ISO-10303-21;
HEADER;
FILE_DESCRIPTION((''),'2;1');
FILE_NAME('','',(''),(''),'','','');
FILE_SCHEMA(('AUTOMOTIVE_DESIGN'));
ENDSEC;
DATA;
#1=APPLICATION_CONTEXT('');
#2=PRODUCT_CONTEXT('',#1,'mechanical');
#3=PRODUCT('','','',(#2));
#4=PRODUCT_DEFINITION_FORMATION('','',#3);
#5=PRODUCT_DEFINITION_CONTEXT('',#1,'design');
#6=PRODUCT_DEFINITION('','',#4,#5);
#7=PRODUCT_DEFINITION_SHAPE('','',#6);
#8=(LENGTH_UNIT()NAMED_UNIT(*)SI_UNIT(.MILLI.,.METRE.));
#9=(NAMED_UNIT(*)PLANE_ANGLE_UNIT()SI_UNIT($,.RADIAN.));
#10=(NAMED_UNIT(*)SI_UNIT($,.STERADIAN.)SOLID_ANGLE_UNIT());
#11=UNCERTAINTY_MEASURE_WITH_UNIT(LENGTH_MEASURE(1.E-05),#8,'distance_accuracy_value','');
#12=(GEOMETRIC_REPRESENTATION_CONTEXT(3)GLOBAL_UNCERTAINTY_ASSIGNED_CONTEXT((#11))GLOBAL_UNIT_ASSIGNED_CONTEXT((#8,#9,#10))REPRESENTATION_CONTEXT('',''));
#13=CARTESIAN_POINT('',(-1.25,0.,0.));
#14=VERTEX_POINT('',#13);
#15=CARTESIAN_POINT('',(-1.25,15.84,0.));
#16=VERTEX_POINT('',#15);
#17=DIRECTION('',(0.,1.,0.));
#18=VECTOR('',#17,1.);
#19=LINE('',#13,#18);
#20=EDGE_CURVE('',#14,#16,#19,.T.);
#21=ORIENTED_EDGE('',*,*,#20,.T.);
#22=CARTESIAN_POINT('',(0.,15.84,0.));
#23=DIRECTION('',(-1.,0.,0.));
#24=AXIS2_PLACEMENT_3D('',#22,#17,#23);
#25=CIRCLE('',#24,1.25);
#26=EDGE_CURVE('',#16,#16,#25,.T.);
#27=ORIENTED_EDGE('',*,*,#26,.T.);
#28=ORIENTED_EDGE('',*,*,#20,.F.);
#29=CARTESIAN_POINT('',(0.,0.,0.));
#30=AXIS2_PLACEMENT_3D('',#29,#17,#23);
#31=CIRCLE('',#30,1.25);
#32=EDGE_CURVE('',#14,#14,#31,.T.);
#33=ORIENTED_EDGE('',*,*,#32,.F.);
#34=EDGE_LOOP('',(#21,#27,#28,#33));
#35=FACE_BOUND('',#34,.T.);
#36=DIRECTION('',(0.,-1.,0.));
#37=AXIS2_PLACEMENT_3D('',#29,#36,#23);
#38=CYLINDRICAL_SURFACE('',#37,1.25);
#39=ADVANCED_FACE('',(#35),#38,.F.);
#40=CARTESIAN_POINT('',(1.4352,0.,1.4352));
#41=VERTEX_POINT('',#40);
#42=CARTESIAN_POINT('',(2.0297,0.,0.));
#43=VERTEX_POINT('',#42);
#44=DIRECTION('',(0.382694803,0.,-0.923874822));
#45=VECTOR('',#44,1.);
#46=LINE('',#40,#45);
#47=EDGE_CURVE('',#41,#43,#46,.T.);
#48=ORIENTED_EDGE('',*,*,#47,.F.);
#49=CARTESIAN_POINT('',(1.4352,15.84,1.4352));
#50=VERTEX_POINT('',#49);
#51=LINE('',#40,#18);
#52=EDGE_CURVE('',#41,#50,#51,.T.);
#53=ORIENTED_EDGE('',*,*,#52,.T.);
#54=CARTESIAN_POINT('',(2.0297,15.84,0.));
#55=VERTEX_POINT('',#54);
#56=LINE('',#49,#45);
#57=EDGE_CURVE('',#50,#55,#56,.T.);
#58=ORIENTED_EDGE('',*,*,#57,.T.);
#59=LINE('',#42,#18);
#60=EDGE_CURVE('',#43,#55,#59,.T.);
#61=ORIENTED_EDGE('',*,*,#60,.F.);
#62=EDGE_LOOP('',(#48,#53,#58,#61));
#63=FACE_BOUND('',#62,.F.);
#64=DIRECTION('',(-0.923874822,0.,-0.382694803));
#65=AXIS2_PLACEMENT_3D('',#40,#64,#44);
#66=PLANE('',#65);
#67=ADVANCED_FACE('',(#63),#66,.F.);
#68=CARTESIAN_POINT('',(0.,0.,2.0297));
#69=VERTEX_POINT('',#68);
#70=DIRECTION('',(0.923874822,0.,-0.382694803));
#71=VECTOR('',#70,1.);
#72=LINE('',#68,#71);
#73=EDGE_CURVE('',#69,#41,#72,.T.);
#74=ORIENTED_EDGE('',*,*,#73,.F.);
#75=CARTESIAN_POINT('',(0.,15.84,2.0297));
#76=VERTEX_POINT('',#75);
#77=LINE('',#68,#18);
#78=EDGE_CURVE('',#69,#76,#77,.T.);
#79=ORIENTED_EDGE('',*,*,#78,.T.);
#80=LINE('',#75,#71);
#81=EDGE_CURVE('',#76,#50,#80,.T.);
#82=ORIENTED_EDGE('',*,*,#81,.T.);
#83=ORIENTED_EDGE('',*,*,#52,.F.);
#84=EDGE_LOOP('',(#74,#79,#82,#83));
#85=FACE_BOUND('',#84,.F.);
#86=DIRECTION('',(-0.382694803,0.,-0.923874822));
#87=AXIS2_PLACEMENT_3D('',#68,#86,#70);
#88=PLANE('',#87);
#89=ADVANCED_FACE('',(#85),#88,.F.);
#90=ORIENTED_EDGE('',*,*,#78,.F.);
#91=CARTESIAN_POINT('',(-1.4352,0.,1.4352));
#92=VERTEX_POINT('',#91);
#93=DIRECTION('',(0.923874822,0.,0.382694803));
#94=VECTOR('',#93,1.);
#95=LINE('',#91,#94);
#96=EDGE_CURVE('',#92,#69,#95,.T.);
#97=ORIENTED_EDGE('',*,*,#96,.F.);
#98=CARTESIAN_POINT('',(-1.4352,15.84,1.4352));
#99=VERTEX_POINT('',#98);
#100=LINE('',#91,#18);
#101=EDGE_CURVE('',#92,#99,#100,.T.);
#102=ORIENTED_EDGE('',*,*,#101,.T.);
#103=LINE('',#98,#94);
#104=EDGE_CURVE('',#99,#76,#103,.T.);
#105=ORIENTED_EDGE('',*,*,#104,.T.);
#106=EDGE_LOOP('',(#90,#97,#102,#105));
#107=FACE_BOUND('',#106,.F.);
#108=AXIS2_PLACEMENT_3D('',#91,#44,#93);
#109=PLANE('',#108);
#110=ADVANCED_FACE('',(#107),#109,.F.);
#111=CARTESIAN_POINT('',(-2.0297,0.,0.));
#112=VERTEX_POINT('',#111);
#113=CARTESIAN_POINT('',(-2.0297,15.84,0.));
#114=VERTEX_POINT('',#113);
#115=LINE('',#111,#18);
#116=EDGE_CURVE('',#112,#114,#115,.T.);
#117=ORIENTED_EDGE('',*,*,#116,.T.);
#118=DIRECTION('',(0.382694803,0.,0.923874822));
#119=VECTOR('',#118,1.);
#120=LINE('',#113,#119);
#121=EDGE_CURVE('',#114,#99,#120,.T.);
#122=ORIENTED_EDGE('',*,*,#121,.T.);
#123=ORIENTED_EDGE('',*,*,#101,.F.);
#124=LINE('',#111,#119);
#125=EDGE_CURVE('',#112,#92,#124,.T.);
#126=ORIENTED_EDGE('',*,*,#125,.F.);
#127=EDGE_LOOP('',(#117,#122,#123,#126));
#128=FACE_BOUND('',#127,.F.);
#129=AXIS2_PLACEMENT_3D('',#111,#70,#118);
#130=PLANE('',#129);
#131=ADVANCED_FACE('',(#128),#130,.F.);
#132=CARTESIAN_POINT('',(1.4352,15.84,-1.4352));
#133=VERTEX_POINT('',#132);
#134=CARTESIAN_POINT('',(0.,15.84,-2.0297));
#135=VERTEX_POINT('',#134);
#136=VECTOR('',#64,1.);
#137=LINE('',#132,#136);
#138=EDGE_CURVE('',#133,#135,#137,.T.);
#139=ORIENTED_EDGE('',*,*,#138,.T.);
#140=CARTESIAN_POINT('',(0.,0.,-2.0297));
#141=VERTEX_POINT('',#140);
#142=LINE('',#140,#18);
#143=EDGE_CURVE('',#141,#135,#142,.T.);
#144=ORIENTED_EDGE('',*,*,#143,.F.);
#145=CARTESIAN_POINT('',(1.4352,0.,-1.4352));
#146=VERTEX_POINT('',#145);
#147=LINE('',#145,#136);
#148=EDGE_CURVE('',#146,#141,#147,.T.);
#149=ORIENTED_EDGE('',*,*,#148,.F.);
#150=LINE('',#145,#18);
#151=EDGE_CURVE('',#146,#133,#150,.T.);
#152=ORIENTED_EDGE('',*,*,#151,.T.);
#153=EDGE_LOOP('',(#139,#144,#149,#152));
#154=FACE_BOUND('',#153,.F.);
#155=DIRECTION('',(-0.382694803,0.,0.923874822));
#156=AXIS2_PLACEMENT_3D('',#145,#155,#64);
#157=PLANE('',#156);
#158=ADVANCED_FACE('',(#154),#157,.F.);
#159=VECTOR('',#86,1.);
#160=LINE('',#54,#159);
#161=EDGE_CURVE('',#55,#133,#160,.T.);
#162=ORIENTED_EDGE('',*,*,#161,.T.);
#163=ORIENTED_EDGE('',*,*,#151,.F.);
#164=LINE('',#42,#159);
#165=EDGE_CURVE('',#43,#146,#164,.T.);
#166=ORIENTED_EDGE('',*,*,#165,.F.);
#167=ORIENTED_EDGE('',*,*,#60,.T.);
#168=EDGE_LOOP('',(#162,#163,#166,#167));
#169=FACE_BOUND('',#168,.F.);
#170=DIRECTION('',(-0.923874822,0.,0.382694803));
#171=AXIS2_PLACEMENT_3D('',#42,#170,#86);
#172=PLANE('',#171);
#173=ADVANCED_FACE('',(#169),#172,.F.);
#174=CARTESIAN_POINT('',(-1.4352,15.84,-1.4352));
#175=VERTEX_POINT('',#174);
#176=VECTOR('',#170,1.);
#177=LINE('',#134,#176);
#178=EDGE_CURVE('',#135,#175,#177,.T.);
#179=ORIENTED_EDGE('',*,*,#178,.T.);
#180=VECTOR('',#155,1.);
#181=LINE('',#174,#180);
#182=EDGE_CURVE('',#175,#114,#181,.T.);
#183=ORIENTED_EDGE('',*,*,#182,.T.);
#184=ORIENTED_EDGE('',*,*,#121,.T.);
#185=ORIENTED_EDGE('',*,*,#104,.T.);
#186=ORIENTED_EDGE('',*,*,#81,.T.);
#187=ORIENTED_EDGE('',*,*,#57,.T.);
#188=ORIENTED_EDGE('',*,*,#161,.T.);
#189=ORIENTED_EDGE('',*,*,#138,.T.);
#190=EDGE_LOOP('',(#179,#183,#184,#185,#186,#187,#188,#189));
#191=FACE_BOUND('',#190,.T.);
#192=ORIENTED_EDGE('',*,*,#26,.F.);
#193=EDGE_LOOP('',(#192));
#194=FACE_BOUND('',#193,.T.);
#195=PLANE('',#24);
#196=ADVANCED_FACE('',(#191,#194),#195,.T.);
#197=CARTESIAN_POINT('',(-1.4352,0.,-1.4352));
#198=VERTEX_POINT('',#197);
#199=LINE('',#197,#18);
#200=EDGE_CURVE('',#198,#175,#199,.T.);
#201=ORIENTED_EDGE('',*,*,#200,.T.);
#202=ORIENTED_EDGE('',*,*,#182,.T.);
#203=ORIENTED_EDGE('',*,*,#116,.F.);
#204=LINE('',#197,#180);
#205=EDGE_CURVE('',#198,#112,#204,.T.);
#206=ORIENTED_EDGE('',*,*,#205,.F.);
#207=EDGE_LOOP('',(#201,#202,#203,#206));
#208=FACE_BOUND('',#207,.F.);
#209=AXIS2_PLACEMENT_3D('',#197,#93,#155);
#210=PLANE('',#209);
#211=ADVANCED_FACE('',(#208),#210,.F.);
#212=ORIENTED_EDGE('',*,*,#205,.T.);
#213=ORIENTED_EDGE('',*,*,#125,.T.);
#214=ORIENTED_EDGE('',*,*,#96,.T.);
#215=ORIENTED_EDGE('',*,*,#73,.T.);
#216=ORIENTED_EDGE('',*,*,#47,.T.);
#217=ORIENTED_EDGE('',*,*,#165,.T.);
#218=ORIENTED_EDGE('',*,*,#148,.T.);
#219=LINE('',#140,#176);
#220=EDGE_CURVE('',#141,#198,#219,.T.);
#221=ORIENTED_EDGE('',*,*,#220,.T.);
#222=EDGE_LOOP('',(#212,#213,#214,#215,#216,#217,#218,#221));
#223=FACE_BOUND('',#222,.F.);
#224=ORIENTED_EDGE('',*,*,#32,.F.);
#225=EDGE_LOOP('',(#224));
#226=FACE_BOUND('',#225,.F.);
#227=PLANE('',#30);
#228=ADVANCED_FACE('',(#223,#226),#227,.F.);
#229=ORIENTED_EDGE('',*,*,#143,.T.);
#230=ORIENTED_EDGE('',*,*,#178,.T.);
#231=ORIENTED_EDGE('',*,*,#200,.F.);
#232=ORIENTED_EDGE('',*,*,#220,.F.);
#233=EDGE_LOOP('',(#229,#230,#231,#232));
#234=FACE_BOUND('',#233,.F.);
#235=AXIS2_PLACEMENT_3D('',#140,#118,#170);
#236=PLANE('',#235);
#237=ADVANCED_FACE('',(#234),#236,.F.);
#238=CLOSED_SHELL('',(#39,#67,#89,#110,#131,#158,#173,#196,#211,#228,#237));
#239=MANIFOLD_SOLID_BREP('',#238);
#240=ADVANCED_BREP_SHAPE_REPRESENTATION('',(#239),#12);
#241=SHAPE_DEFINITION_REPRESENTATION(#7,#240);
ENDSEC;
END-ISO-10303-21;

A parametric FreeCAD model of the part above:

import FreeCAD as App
import Part
import Sketcher

V = App.Vector
Q = App.Units.Quantity

doc = App.newDocument("Part")
body = doc.addObject("PartDesign::Body", "Body")

# Sketch on XZ plane
sketch1 = body.newObject("Sketcher::SketchObject", "Sketch")
sketch1.AttachmentSupport = (doc.getObject("XZ_Plane"), [""])
sketch1.MapMode = "FlatFace"
sketch1.addGeometry([
    Part.LineSegment(V(0, -2, 0), V(-1.4, -1.4, 0)),  # 0
    Part.LineSegment(V(-1.4, -1.4, 0), V(-2, 0, 0)),  # 1
    Part.LineSegment(V(-2, 0, 0), V(-1.4, 1.4, 0)),  # 2
    Part.LineSegment(V(-1.4, 1.4, 0), V(0, 2, 0)),  # 3
    Part.LineSegment(V(0, 2, 0), V(1.4, 1.4, 0)),  # 4
    Part.LineSegment(V(1.4, 1.4, 0), V(2, 0, 0)),  # 5
    Part.LineSegment(V(2, 0, 0), V(1.4, -1.4, 0)),  # 6
    Part.LineSegment(V(1.4, -1.4, 0), V(0, -2, 0)),  # 7
    Part.Circle(V(0, 0, 0), V(0, 0, 1), 1.2),  # 8
], False)
sketch1.addConstraint([
    Sketcher.Constraint("Coincident", 0, 2, 1, 1),
    Sketcher.Constraint("Coincident", 1, 2, 2, 1),
    Sketcher.Constraint("Coincident", 2, 2, 3, 1),
    Sketcher.Constraint("Coincident", 3, 2, 4, 1),
    Sketcher.Constraint("Coincident", 4, 2, 5, 1),
    Sketcher.Constraint("Coincident", 5, 2, 6, 1),
    Sketcher.Constraint("Coincident", 6, 2, 7, 1),
    Sketcher.Constraint("Coincident", 7, 2, 0, 1),
    Sketcher.Constraint("Coincident", 8, 3, -1, 1),
    Sketcher.Constraint("Symmetric", 0, 2, 4, 2, -1, 1),
    Sketcher.Constraint("Symmetric", 1, 2, 5, 2, -1, 1),
    Sketcher.Constraint("Symmetric", 2, 2, 6, 2, -1, 1),
    Sketcher.Constraint("Symmetric", 3, 2, 7, 2, -1, 1),
    Sketcher.Constraint("Symmetric", 2, 2, 4, 2, -2),
    Sketcher.Constraint("PointOnObject", 1, 2, -1),
    Sketcher.Constraint("PointOnObject", 3, 2, -2),
    Sketcher.Constraint("Perpendicular", 0, 2),
    Sketcher.Constraint("Equal", 0, 1),
    Sketcher.Constraint("Diameter", 8, 2.5),
    Sketcher.Constraint("Angle", 0, Q("157.4993 deg")),
    Sketcher.Constraint("DistanceY", 0, 2, 3, 2, 3.465),
])
pad1 = body.newObject("PartDesign::Pad", "Pad")
pad1.Profile = sketch1
pad1.Length = 15.84
pad1.Reversed = True

doc.recompute()
